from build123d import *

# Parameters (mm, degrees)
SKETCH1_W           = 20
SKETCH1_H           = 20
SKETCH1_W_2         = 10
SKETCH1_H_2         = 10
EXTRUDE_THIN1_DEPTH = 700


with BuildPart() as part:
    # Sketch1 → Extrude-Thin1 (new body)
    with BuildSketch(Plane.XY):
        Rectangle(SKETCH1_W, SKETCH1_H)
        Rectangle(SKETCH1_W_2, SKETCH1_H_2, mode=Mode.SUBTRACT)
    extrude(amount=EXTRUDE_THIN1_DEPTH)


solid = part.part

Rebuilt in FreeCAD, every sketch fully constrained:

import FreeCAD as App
import Part
import Sketcher
from FreeCAD import Vector


def add_polygon(sketch, points):
    """Adds a closed chain of lines whose ends are joined by coincident constraints."""
    first, n = sketch.GeometryCount, len(points)
    for a, b in zip(points, points[1:] + points[:1]):
        sketch.addGeometry(Part.LineSegment(App.Vector(*a, 0), App.Vector(*b, 0)), False)
    for i in range(n):
        sketch.addConstraint(Sketcher.Constraint("Coincident", first + i, 2, first + (i + 1) % n, 1))

doc = App.newDocument("Part")
params = doc.addObject("Spreadsheet::Sheet", "Params")
for row, (alias, value) in enumerate([
    ("sketch1_width", "20 mm"),
    ("sketch1_width2", "10 mm"),
    ("pad1_length", "700 mm"),
], start=1):
    params.set(f"A{row}", alias)
    params.set(f"B{row}", "=" + value)
    params.setAlias(f"B{row}", alias)

body = doc.addObject("PartDesign::Body", "Body")

sketch1 = body.newObject("Sketcher::SketchObject", "Sketch")
sketch1.AttachmentSupport = (doc.getObject("XY_Plane"), [""])
sketch1.MapMode = "FlatFace"
add_polygon(sketch1, [(-10, 10), (-10, -10), (10, -10), (10, 10)])
add_polygon(sketch1, [(5, -5), (-5, -5), (-5, 5), (5, 5)])
sketch1.addConstraint(Sketcher.Constraint("Vertical", 0))
sketch1.addConstraint(Sketcher.Constraint("Horizontal", 1))
sketch1.addConstraint(Sketcher.Constraint("Vertical", 2))
sketch1.addConstraint(Sketcher.Constraint("Horizontal", 3))
sketch1.addConstraint(Sketcher.Constraint("Horizontal", 4))
sketch1.addConstraint(Sketcher.Constraint("Vertical", 5))
sketch1.addConstraint(Sketcher.Constraint("Horizontal", 6))
sketch1.addConstraint(Sketcher.Constraint("Vertical", 7))
sketch1.addConstraint(Sketcher.Constraint("Symmetric", 0, 2, 2, 2, -1, 1))
sketch1.addConstraint(Sketcher.Constraint("Symmetric", 4, 2, 6, 2, -1, 1))
sketch1.addConstraint(Sketcher.Constraint("Equal", 3, 0))
sketch1.addConstraint(Sketcher.Constraint("Equal", 6, 5))
sketch1.addConstraint(Sketcher.Constraint("DistanceX", 1, 1, 1, 2, 20.0))
sketch1.addConstraint(Sketcher.Constraint("DistanceX", 4, 2, 4, 1, 10.0))
sketch1.setExpression("Constraints[20]", "Params.sketch1_width")
sketch1.setExpression("Constraints[21]", "Params.sketch1_width2")
pad1 = body.newObject("PartDesign::Pad", "Pad")
pad1.Profile = sketch1
pad1.setExpression("Length", "Params.pad1_length")

doc.recompute()
